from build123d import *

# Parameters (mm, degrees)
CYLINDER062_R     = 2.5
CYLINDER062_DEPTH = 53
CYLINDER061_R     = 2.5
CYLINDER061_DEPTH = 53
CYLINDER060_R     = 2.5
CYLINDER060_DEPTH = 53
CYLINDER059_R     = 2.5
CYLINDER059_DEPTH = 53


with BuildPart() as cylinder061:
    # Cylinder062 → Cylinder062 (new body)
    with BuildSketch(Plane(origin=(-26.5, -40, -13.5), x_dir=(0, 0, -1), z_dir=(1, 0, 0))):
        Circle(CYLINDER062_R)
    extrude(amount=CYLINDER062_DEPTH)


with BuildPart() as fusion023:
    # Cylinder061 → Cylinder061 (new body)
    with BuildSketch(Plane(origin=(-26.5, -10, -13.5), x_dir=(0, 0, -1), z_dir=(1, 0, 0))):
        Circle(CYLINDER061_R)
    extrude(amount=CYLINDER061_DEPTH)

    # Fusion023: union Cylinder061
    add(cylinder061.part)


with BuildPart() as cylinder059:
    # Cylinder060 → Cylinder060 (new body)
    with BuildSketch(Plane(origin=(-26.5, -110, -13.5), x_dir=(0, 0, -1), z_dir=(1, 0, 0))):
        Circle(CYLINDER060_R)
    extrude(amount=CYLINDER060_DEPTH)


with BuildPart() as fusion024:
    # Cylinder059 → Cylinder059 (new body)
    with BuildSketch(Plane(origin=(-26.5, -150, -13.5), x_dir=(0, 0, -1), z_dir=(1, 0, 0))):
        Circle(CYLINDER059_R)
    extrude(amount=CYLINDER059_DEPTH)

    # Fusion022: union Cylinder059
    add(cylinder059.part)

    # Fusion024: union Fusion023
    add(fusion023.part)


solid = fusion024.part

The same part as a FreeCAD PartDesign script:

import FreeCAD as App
import Part
import Sketcher

V = App.Vector

doc = App.newDocument("Part")
body = doc.addObject("PartDesign::Body", "Body")

# Sketch on YZ plane
sketch1 = body.newObject("Sketcher::SketchObject", "Sketch")
sketch1.AttachmentSupport = (doc.getObject("YZ_Plane"), [""])
sketch1.MapMode = "FlatFace"
sketch1.AttachmentOffset = App.Placement(V(0, 0, -26.5), App.Rotation())
sketch1.addGeometry(Part.Circle(V(-40, -13.5, 0), V(0, 0, 1), 2.5), False)
sketch1.addConstraint([
    Sketcher.Constraint("Diameter", 0, 5.0),
    Sketcher.Constraint("DistanceX", 0, 3, -1, 1, 40.0),
    Sketcher.Constraint("DistanceY", 0, 3, -1, 1, 13.5),
])
pad1 = body.newObject("PartDesign::Pad", "Pad")
pad1.Profile = sketch1
pad1.Length = 53
body2 = doc.addObject("PartDesign::Body", "Body001")
body2.AllowCompound = True

# Sketch on YZ plane
sketch2 = body2.newObject("Sketcher::SketchObject", "Sketch001")
sketch2.AttachmentSupport = (doc.getObject("YZ_Plane001"), [""])
sketch2.MapMode = "FlatFace"
sketch2.AttachmentOffset = App.Placement(V(0, 0, -26.5), App.Rotation())
sketch2.addGeometry(Part.Circle(V(-10, -13.5, 0), V(0, 0, 1), 2.5), False)
sketch2.addConstraint([
    Sketcher.Constraint("Diameter", 0, 5.0),
    Sketcher.Constraint("DistanceX", 0, 3, -1, 1, 10.0),
    Sketcher.Constraint("DistanceY", 0, 3, -1, 1, 13.5),
])
pad2 = body2.newObject("PartDesign::Pad", "Pad001")
pad2.Profile = sketch2
pad2.Length = 53
doc.recompute()

boolean = body2.newObject("PartDesign::Boolean", "Boolean")
boolean.Type = "Fuse"
boolean.addObjects([body])
body3 = doc.addObject("PartDesign::Body", "Body002")

# Sketch on YZ plane
sketch3 = body3.newObject("Sketcher::SketchObject", "Sketch002")
sketch3.AttachmentSupport = (doc.getObject("YZ_Plane002"), [""])
sketch3.MapMode = "FlatFace"
sketch3.AttachmentOffset = App.Placement(V(0, 0, -26.5), App.Rotation())
sketch3.addGeometry(Part.Circle(V(-110, -13.5, 0), V(0, 0, 1), 2.5), False)
sketch3.addConstraint([
    Sketcher.Constraint("Diameter", 0, 5.0),
    Sketcher.Constraint("DistanceX", 0, 3, -1, 1, 110.0),
    Sketcher.Constraint("DistanceY", 0, 3, -1, 1, 13.5),
])
pad3 = body3.newObject("PartDesign::Pad", "Pad002")
pad3.Profile = sketch3
pad3.Length = 53
body4 = doc.addObject("PartDesign::Body", "Body003")
body4.AllowCompound = True

# Sketch on YZ plane
sketch4 = body4.newObject("Sketcher::SketchObject", "Sketch003")
sketch4.AttachmentSupport = (doc.getObject("YZ_Plane003"), [""])
sketch4.MapMode = "FlatFace"
sketch4.AttachmentOffset = App.Placement(V(0, 0, -26.5), App.Rotation())
sketch4.addGeometry(Part.Circle(V(-150, -13.5, 0), V(0, 0, 1), 2.5), False)
sketch4.addConstraint([
    Sketcher.Constraint("Diameter", 0, 5.0),
    Sketcher.Constraint("DistanceX", 0, 3, -1, 1, 150.0),
    Sketcher.Constraint("DistanceY", 0, 3, -1, 1, 13.5),
])
pad4 = body4.newObject("PartDesign::Pad", "Pad003")
pad4.Profile = sketch4
pad4.Length = 53
doc.recompute()

boolean2 = body4.newObject("PartDesign::Boolean", "Boolean001")
boolean2.Type = "Fuse"
boolean2.addObjects([body3])
doc.recompute()

boolean3 = body4.newObject("PartDesign::Boolean", "Boolean002")
boolean3.Type = "Fuse"
boolean3.addObjects([body2])

doc.recompute()
